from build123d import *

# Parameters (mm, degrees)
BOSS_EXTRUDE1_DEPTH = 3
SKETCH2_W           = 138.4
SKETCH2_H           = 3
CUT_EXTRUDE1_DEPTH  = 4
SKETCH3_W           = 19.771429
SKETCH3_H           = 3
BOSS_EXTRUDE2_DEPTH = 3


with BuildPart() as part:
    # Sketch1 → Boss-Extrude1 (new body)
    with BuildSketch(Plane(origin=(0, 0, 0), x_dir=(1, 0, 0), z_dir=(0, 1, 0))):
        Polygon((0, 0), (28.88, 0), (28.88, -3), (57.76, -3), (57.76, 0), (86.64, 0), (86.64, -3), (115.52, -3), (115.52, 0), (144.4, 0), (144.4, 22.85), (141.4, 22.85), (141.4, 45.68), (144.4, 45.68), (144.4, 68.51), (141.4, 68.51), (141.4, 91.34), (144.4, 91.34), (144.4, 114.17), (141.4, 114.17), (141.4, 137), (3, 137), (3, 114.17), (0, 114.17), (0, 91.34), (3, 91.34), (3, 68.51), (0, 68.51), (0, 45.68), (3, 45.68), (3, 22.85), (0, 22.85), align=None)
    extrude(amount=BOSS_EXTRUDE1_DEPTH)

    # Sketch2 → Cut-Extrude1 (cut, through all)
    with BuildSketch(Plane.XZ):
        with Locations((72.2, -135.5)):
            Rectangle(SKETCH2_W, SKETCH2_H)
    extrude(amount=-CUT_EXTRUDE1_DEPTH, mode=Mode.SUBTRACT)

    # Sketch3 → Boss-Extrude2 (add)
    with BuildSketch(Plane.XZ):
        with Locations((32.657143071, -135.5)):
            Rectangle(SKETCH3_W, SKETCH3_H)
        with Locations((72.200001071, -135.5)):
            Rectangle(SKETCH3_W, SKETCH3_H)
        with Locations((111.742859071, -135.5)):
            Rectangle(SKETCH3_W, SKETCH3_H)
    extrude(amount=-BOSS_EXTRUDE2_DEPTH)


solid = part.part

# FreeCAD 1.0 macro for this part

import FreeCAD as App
import Part
import Sketcher

V = App.Vector

doc = App.newDocument("Part")
body = doc.addObject("PartDesign::Body", "Body")

# Sketch on XZ plane
sketch1 = body.newObject("Sketcher::SketchObject", "Sketch")
sketch1.AttachmentSupport = (doc.getObject("XZ_Plane"), [""])
sketch1.MapMode = "FlatFace"
sketch1.addGeometry([
    Part.LineSegment(V(0, 0, 0), V(28.9, 0, 0)),  # 0
    Part.LineSegment(V(28.9, 0, 0), V(28.9, 3, 0)),  # 1
    Part.LineSegment(V(28.9, 3, 0), V(57.8, 3, 0)),  # 2
    Part.LineSegment(V(57.8, 3, 0), V(57.8, 0, 0)),  # 3
    Part.LineSegment(V(57.8, 0, 0), V(86.6, 0, 0)),  # 4
    Part.LineSegment(V(86.6, 0, 0), V(86.6, 3, 0)),  # 5
    Part.LineSegment(V(86.6, 3, 0), V(115.5, 3, 0)),  # 6
    Part.LineSegment(V(115.5, 3, 0), V(115.5, 0, 0)),  # 7
    Part.LineSegment(V(115.5, 0, 0), V(144.4, 0, 0)),  # 8
    Part.LineSegment(V(144.4, 0, 0), V(144.4, -22.9, 0)),  # 9
    Part.LineSegment(V(144.4, -22.9, 0), V(141.4, -22.9, 0)),  # 10
    Part.LineSegment(V(141.4, -22.9, 0), V(141.4, -45.7, 0)),  # 11
    Part.LineSegment(V(141.4, -45.7, 0), V(144.4, -45.7, 0)),  # 12
    Part.LineSegment(V(144.4, -45.7, 0), V(144.4, -68.5, 0)),  # 13
    Part.LineSegment(V(144.4, -68.5, 0), V(141.4, -68.5, 0)),  # 14
    Part.LineSegment(V(141.4, -68.5, 0), V(141.4, -91.3, 0)),  # 15
    Part.LineSegment(V(141.4, -91.3, 0), V(144.4, -91.3, 0)),  # 16
    Part.LineSegment(V(144.4, -91.3, 0), V(144.4, -114.2, 0)),  # 17
    Part.LineSegment(V(144.4, -114.2, 0), V(141.4, -114.2, 0)),  # 18
    Part.LineSegment(V(141.4, -114.2, 0), V(141.4, -137, 0)),  # 19
    Part.LineSegment(V(141.4, -137, 0), V(3, -137, 0)),  # 20
    Part.LineSegment(V(3, -137, 0), V(3, -114.2, 0)),  # 21
    Part.LineSegment(V(3, -114.2, 0), V(0, -114.2, 0)),  # 22
    Part.LineSegment(V(0, -114.2, 0), V(0, -91.3, 0)),  # 23
    Part.LineSegment(V(0, -91.3, 0), V(3, -91.3, 0)),  # 24
    Part.LineSegment(V(3, -91.3, 0), V(3, -68.5, 0)),  # 25
    Part.LineSegment(V(3, -68.5, 0), V(0, -68.5, 0)),  # 26
    Part.LineSegment(V(0, -68.5, 0), V(0, -45.7, 0)),  # 27
    Part.LineSegment(V(0, -45.7, 0), V(3, -45.7, 0)),  # 28
    Part.LineSegment(V(3, -45.7, 0), V(3, -22.9, 0)),  # 29
    Part.LineSegment(V(3, -22.9, 0), V(0, -22.9, 0)),  # 30
    Part.LineSegment(V(0, -22.9, 0), V(0, 0, 0)),  # 31
], False)
sketch1.addConstraint([
    Sketcher.Constraint("Coincident", 0, 2, 1, 1),
    Sketcher.Constraint("Coincident", 1, 2, 2, 1),
    Sketcher.Constraint("Coincident", 2, 2, 3, 1),
    Sketcher.Constraint("Coincident", 3, 2, 4, 1),
    Sketcher.Constraint("Coincident", 4, 2, 5, 1),
    Sketcher.Constraint("Coincident", 5, 2, 6, 1),
    Sketcher.Constraint("Coincident", 6, 2, 7, 1),
    Sketcher.Constraint("Coincident", 7, 2, 8, 1),
    Sketcher.Constraint("Coincident", 8, 2, 9, 1),
    Sketcher.Constraint("Coincident", 9, 2, 10, 1),
    Sketcher.Constraint("Coincident", 10, 2, 11, 1),
    Sketcher.Constraint("Coincident", 11, 2, 12, 1),
    Sketcher.Constraint("Coincident", 12, 2, 13, 1),
    Sketcher.Constraint("Coincident", 13, 2, 14, 1),
    Sketcher.Constraint("Coincident", 14, 2, 15, 1),
    Sketcher.Constraint("Coincident", 15, 2, 16, 1),
    Sketcher.Constraint("Coincident", 16, 2, 17, 1),
    Sketcher.Constraint("Coincident", 17, 2, 18, 1),
    Sketcher.Constraint("Coincident", 18, 2, 19, 1),
    Sketcher.Constraint("Coincident", 19, 2, 20, 1),
    Sketcher.Constraint("Coincident", 20, 2, 21, 1),
    Sketcher.Constraint("Coincident", 21, 2, 22, 1),
    Sketcher.Constraint("Coincident", 22, 2, 23, 1),
    Sketcher.Constraint("Coincident", 23, 2, 24, 1),
    Sketcher.Constraint("Coincident", 24, 2, 25, 1),
    Sketcher.Constraint("Coincident", 25, 2, 26, 1),
    Sketcher.Constraint("Coincident", 26, 2, 27, 1),
    Sketcher.Constraint("Coincident", 27, 2, 28, 1),
    Sketcher.Constraint("Coincident", 28, 2, 29, 1),
    Sketcher.Constraint("Coincident", 29, 2, 30, 1),
    Sketcher.Constraint("Coincident", 30, 2, 31, 1),
    Sketcher.Constraint("Coincident", 31, 2, 0, 1),
    Sketcher.Constraint("Horizontal", 0),
    Sketcher.Constraint("Vertical", 1),
    Sketcher.Constraint("Horizontal", 2),
    Sketcher.Constraint("Vertical", 3),
    Sketcher.Constraint("Horizontal", 4),
    Sketcher.Constraint("Vertical", 5),
    Sketcher.Constraint("Horizontal", 6),
    Sketcher.Constraint("Vertical", 7),
    Sketcher.Constraint("Horizontal", 8),
    Sketcher.Constraint("Vertical", 9),
    Sketcher.Constraint("Horizontal", 10),
    Sketcher.Constraint("Vertical", 11),
    Sketcher.Constraint("Horizontal", 12),
    Sketcher.Constraint("Vertical", 13),
    Sketcher.Constraint("Horizontal", 14),
    Sketcher.Constraint("Vertical", 15),
    Sketcher.Constraint("Horizontal", 16),
    Sketcher.Constraint("Vertical", 17),
    Sketcher.Constraint("Horizontal", 18),
    Sketcher.Constraint("Vertical", 19),
    Sketcher.Constraint("Horizontal", 20),
    Sketcher.Constraint("Vertical", 21),
    Sketcher.Constraint("Horizontal", 22),
    Sketcher.Constraint("Vertical", 23),
    Sketcher.Constraint("Horizontal", 24),
    Sketcher.Constraint("Vertical", 25),
    Sketcher.Constraint("Horizontal", 26),
    Sketcher.Constraint("Vertical", 27),
    Sketcher.Constraint("Horizontal", 28),
    Sketcher.Constraint("Vertical", 29),
    Sketcher.Constraint("Horizontal", 30),
    Sketcher.Constraint("Vertical", 31),
    Sketcher.Constraint("Coincident", 31, 2, -1, 1),
    Sketcher.Constraint("PointOnObject", 3, 2, -1),
    Sketcher.Constraint("PointOnObject", 7, 2, -1),
    Sketcher.Constraint("PointOnObject", 22, 2, -2),
    Sketcher.Constraint("PointOnObject", 26, 2, -2),
    Sketcher.Constraint("Horizontal", 2, 2, 5, 2),
    Sketcher.Constraint("Horizontal", 18, 2, 21, 2),
    Sketcher.Constraint("Horizontal", 16, 2, 23, 2),
    Sketcher.Constraint("Horizontal", 14, 2, 25, 2),
    Sketcher.Constraint("Horizontal", 12, 2, 27, 2),
    Sketcher.Constraint("Horizontal", 10, 2, 29, 2),
    Sketcher.Constraint("Vertical", 9, 2, 12, 2),
    Sketcher.Constraint("Vertical", 11, 2, 14, 2),
    Sketcher.Constraint("Vertical", 13, 2, 16, 2),
    Sketcher.Constraint("Vertical", 15, 2, 18, 2),
    Sketcher.Constraint("Vertical", 21, 2, 24, 2),
    Sketcher.Constraint("Vertical", 25, 2, 28, 2),
    Sketcher.Constraint("Equal", 0, 2),
    Sketcher.Constraint("Equal", 2, 4),
    Sketcher.Constraint("Equal", 4, 6),
    Sketcher.Constraint("Equal", 6, 8),
    Sketcher.Constraint("Equal", 18, 22),
    Sketcher.Constraint("Equal", 30, 1),
    Sketcher.Constraint("Equal", 11, 13),
    Sketcher.Constraint("Equal", 13, 15),
    Sketcher.Constraint("Equal", 15, 17),
    Sketcher.Constraint("Equal", 17, 19),
    Sketcher.Constraint("DistanceX", 10, 2, 10, 1, 3.0),
    Sketcher.Constraint("DistanceX", 20, 2, 20, 1, 138.4),
    Sketcher.Constraint("DistanceY", 19, 2, -1, 1, 137.0),
    Sketcher.Constraint("DistanceY", 9, 2, 9, 1, 22.85),
])
pad1 = body.newObject("PartDesign::Pad", "Pad")
pad1.Profile = sketch1
pad1.Length = 3
pad1.Reversed = True

# Sketch on XZ plane
sketch2 = body.newObject("Sketcher::SketchObject", "Sketch001")
sketch2.AttachmentSupport = (doc.getObject("XZ_Plane"), [""])
sketch2.MapMode = "FlatFace"
sketch2.addGeometry([
    Part.LineSegment(V(3, -134, 0), V(3, -137, 0)),
    Part.LineSegment(V(3, -137, 0), V(141.4, -137, 0)),
    Part.LineSegment(V(141.4, -137, 0), V(141.4, -134, 0)),
    Part.LineSegment(V(141.4, -134, 0), V(3, -134, 0)),
], False)
sketch2.addConstraint([
    Sketcher.Constraint("Coincident", 0, 2, 1, 1),
    Sketcher.Constraint("Coincident", 1, 2, 2, 1),
    Sketcher.Constraint("Coincident", 2, 2, 3, 1),
    Sketcher.Constraint("Coincident", 3, 2, 0, 1),
    Sketcher.Constraint("Vertical", 0),
    Sketcher.Constraint("Horizontal", 1),
    Sketcher.Constraint("Vertical", 2),
    Sketcher.Constraint("Horizontal", 3),
    Sketcher.Constraint("DistanceY", 0, 2, 0, 1, 3.0),
    Sketcher.Constraint("DistanceX", 1, 1, 1, 2, 138.4),
    Sketcher.Constraint("DistanceX", -1, 1, 0, 2, 3.0),
    Sketcher.Constraint("DistanceY", 0, 2, -1, 1, 137.0),
])
pocket1 = body.newObject("PartDesign::Pocket", "Pocket")
pocket1.Profile = sketch2
pocket1.Type = "ThroughAll"

# Sketch on XZ plane
sketch3 = body.newObject("Sketcher::SketchObject", "Sketch002")
sketch3.AttachmentSupport = (doc.getObject("XZ_Plane"), [""])
sketch3.MapMode = "FlatFace"
sketch3.addGeometry([
    Part.LineSegment(V(22.8, -134, 0), V(22.8, -137, 0)),  # 0
    Part.LineSegment(V(22.8, -137, 0), V(42.5, -137, 0)),  # 1
    Part.LineSegment(V(42.5, -137, 0), V(42.5, -134, 0)),  # 2
    Part.LineSegment(V(42.5, -134, 0), V(22.8, -134, 0)),  # 3
    Part.LineSegment(V(62.3, -134, 0), V(62.3, -137, 0)),  # 4
    Part.LineSegment(V(62.3, -137, 0), V(82.1, -137, 0)),  # 5
    Part.LineSegment(V(82.1, -137, 0), V(82.1, -134, 0)),  # 6
    Part.LineSegment(V(82.1, -134, 0), V(62.3, -134, 0)),  # 7
    Part.LineSegment(V(101.9, -134, 0), V(101.9, -137, 0)),  # 8
    Part.LineSegment(V(101.9, -137, 0), V(121.6, -137, 0)),  # 9
    Part.LineSegment(V(121.6, -137, 0), V(121.6, -134, 0)),  # 10
    Part.LineSegment(V(121.6, -134, 0), V(101.9, -134, 0)),  # 11
], False)
sketch3.addConstraint([
    Sketcher.Constraint("Coincident", 0, 2, 1, 1),
    Sketcher.Constraint("Coincident", 1, 2, 2, 1),
    Sketcher.Constraint("Coincident", 2, 2, 3, 1),
    Sketcher.Constraint("Coincident", 3, 2, 0, 1),
    Sketcher.Constraint("Coincident", 4, 2, 5, 1),
    Sketcher.Constraint("Coincident", 5, 2, 6, 1),
    Sketcher.Constraint("Coincident", 6, 2, 7, 1),
    Sketcher.Constraint("Coincident", 7, 2, 4, 1),
    Sketcher.Constraint("Coincident", 8, 2, 9, 1),
    Sketcher.Constraint("Coincident", 9, 2, 10, 1),
    Sketcher.Constraint("Coincident", 10, 2, 11, 1),
    Sketcher.Constraint("Coincident", 11, 2, 8, 1),
    Sketcher.Constraint("Vertical", 0),
    Sketcher.Constraint("Horizontal", 1),
    Sketcher.Constraint("Vertical", 2),
    Sketcher.Constraint("Horizontal", 3),
    Sketcher.Constraint("Vertical", 4),
    Sketcher.Constraint("Horizontal", 5),
    Sketcher.Constraint("Vertical", 6),
    Sketcher.Constraint("Horizontal", 7),
    Sketcher.Constraint("Vertical", 8),
    Sketcher.Constraint("Horizontal", 9),
    Sketcher.Constraint("Vertical", 10),
    Sketcher.Constraint("Horizontal", 11),
    Sketcher.Constraint("Horizontal", 1, 2, 4, 2),
    Sketcher.Constraint("Horizontal", 3, 2, 6, 2),
    Sketcher.Constraint("Horizontal", 5, 2, 8, 2),
    Sketcher.Constraint("Horizontal", 7, 2, 10, 2),
    Sketcher.Constraint("Equal", 3, 5),
    Sketcher.Constraint("Equal", 7, 9),
    Sketcher.Constraint("DistanceY", 0, 2, 0, 1, 3.0),
    Sketcher.Constraint("DistanceY", 0, 2, -1, 1, 137.0),
    Sketcher.Constraint("DistanceX", 1, 1, 1, 2, 19.771429),
    Sketcher.Constraint("DistanceX", -1, 1, 0, 2, 22.771429),
    Sketcher.Constraint("DistanceX", 1, 2, 4, 2, 19.771429),
    Sketcher.Constraint("DistanceX", 5, 2, 8, 2, 19.771429),
])
pad2 = body.newObject("PartDesign::Pad", "Pad001")
pad2.Profile = sketch3
pad2.Length = 3
pad2.Reversed = True

doc.recompute()
